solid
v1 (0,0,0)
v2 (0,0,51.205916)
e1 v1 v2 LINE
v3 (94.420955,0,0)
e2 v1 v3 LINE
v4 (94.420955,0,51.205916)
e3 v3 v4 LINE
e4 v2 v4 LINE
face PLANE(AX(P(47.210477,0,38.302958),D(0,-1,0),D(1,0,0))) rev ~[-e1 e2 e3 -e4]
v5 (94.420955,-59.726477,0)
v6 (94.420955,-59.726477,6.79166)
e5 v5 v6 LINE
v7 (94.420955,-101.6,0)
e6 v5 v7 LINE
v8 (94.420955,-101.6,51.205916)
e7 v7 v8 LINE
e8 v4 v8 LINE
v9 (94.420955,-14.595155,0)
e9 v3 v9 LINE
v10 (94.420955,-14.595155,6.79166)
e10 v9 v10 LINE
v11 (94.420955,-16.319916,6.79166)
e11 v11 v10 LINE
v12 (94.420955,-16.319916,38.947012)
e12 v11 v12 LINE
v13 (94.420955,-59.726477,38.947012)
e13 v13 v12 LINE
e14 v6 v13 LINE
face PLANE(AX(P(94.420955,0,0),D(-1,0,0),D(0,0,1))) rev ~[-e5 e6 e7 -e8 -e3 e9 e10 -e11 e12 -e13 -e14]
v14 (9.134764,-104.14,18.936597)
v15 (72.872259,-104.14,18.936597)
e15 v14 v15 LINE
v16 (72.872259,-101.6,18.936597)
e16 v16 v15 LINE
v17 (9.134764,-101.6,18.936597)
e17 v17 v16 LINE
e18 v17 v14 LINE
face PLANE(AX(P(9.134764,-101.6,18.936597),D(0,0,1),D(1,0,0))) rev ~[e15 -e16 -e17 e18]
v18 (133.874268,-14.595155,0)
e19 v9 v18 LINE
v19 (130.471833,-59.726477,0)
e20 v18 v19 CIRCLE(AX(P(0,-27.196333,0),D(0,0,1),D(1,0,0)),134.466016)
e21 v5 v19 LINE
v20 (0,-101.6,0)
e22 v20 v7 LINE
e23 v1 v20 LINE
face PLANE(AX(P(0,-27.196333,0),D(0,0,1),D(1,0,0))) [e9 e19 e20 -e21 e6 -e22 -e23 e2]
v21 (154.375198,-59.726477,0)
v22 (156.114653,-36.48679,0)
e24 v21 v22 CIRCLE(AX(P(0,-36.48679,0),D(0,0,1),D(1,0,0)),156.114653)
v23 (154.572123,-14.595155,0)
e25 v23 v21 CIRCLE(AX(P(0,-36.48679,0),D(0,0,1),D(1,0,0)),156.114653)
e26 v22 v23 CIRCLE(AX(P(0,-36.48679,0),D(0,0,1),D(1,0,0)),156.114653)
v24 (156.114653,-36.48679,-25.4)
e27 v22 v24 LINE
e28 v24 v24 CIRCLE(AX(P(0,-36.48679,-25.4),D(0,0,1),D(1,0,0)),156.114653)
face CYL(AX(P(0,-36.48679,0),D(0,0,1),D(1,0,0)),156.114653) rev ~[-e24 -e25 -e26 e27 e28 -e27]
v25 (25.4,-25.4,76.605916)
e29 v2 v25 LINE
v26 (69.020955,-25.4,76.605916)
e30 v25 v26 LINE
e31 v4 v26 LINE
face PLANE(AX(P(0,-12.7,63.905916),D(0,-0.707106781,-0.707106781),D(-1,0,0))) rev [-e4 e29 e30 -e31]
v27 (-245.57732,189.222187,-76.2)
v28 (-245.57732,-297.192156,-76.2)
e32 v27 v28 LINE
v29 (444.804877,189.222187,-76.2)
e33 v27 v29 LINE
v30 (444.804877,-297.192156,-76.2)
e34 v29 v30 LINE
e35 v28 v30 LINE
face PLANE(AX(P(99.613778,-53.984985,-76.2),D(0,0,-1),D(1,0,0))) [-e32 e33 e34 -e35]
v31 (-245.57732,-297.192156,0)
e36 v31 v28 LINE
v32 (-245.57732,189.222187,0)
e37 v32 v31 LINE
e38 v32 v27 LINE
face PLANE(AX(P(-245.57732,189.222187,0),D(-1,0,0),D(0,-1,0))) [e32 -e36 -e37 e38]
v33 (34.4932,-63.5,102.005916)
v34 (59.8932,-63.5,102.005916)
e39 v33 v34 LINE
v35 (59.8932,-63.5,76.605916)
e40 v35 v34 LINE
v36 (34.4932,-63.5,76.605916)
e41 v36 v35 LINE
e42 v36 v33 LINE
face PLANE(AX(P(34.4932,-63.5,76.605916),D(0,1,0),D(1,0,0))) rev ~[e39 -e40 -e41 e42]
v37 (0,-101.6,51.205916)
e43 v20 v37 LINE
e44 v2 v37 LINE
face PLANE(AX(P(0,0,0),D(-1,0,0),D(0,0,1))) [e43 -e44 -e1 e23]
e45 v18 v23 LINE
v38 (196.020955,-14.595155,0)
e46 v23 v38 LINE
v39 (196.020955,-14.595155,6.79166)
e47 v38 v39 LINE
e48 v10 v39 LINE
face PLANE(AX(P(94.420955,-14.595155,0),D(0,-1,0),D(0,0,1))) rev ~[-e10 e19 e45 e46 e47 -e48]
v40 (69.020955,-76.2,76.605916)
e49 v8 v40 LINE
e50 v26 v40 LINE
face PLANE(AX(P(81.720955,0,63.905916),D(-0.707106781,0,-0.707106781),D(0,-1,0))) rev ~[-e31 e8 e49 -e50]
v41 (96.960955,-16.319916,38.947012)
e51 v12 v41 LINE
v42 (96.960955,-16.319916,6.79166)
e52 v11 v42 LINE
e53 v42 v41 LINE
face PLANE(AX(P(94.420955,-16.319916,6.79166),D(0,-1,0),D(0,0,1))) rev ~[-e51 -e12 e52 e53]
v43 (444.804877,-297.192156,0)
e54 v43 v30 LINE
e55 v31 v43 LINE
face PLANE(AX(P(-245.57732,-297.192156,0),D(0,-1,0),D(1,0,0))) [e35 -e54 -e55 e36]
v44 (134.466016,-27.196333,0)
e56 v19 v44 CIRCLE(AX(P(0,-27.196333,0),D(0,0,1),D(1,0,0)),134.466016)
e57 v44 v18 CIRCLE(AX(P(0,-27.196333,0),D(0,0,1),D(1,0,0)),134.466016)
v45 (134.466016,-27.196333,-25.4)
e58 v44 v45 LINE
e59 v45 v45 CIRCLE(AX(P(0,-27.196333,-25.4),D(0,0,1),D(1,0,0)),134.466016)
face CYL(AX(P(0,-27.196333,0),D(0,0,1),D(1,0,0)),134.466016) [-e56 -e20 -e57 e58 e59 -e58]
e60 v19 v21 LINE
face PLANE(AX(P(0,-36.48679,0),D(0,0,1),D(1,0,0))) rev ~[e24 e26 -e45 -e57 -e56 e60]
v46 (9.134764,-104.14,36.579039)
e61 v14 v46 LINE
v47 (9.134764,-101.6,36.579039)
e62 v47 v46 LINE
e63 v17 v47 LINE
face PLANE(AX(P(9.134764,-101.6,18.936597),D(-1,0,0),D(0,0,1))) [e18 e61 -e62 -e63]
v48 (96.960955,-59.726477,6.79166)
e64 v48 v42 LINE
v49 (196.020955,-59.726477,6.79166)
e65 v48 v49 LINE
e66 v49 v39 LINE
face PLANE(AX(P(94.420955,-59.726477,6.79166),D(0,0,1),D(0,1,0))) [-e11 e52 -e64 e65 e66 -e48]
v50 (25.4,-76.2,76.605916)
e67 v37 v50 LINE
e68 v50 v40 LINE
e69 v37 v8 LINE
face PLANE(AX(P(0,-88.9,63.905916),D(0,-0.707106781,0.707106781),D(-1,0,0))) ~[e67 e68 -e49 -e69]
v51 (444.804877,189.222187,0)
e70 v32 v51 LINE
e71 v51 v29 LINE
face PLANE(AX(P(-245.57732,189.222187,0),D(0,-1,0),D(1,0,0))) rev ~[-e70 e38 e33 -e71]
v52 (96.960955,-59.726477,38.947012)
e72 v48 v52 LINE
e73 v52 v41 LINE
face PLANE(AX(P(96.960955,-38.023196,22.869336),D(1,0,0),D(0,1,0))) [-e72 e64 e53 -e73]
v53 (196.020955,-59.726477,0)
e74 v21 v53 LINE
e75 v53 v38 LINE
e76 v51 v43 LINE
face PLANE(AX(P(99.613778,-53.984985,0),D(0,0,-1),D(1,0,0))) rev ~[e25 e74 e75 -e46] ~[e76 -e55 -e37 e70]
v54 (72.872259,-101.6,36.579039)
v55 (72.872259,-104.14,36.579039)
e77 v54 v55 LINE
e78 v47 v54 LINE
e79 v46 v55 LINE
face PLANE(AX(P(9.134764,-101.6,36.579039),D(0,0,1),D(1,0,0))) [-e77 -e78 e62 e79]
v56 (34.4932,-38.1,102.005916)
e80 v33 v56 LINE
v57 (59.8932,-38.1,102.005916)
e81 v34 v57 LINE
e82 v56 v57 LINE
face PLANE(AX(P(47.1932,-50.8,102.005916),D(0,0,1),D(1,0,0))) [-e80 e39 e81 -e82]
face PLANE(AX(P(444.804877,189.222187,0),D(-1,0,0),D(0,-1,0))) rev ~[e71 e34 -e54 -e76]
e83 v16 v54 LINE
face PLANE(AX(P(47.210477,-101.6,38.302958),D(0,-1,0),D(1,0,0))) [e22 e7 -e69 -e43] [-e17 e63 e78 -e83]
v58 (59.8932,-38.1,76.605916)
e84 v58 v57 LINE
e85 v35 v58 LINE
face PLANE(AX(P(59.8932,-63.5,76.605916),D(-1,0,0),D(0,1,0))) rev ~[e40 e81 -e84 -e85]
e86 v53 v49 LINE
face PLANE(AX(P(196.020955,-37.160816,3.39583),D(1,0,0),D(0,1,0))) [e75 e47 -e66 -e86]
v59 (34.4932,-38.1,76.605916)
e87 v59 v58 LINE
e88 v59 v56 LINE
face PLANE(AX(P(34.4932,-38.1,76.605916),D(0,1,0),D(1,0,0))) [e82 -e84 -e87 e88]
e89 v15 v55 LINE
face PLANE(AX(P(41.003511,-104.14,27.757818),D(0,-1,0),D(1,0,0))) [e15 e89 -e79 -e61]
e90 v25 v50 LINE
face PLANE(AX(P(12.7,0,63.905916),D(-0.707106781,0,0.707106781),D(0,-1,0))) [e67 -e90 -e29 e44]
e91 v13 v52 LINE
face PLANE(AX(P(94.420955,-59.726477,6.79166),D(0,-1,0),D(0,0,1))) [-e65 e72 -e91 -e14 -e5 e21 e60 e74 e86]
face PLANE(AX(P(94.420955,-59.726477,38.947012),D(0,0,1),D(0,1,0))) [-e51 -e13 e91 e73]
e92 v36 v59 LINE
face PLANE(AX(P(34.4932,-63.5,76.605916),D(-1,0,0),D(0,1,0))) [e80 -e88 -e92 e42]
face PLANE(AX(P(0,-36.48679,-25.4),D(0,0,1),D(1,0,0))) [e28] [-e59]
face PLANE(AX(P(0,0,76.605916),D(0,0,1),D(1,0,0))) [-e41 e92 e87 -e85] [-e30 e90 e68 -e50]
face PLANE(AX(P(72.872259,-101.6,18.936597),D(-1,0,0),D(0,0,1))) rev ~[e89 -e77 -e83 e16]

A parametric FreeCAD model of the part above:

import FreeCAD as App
import Part
import Sketcher

V = App.Vector
Q = App.Units.Quantity


def edges_at(feature, points):
    """Names of the edges that pass closest to the given points."""
    edges = feature.Shape.Edges
    near = lambda p: min(range(len(edges)), key=lambda i: edges[i].distToShape(Part.Vertex(*p))[0])
    return sorted({f"Edge{near(p) + 1}" for p in points})

doc = App.newDocument("Part")
body = doc.addObject("PartDesign::Body", "Body")

# Sketch on XZ plane
sketch1 = body.newObject("Sketcher::SketchObject", "Sketch")
sketch1.AttachmentSupport = (doc.getObject("XZ_Plane"), [""])
sketch1.MapMode = "FlatFace"
sketch1.addGeometry(Part.LineSegment(V(0, 77, 0), V(0, 0, 0)), False)
sketch1.addGeometry(Part.LineSegment(V(0, 0, 0), V(94, 0, 0)), False)
sketch1.addGeometry(Part.LineSegment(V(94, 0, 0), V(94, 77, 0)), False)
sketch1.addGeometry(Part.LineSegment(V(94, 77, 0), V(0, 77, 0)), False)
sketch1.addConstraint(Sketcher.Constraint("Coincident", 0, 2, 1, 1))
sketch1.addConstraint(Sketcher.Constraint("Coincident", 1, 2, 2, 1))
sketch1.addConstraint(Sketcher.Constraint("Coincident", 2, 2, 3, 1))
sketch1.addConstraint(Sketcher.Constraint("Coincident", 3, 2, 0, 1))
sketch1.addConstraint(Sketcher.Constraint("Vertical", 0))
sketch1.addConstraint(Sketcher.Constraint("Horizontal", 1))
sketch1.addConstraint(Sketcher.Constraint("Vertical", 2))
sketch1.addConstraint(Sketcher.Constraint("Horizontal", 3))
sketch1.addConstraint(Sketcher.Constraint("Coincident", 0, 2, -1, 1))
sketch1.addConstraint(Sketcher.Constraint("DistanceX", 1, 1, 1, 2, 94.420955))
sketch1.addConstraint(Sketcher.Constraint("DistanceY", 0, 2, 0, 1, 76.605916))
pad1 = body.newObject("PartDesign::Pad", "Pad")
pad1.Profile = sketch1
pad1.Length = Q("4 in")
doc.recompute()

chamfer = body.newObject("PartDesign::Chamfer", "Chamfer")
chamfer.Base = (pad1, edges_at(pad1, [
    (94.421, -50.8, 76.606),
    (0, -50.8, 76.606),
    (47.21, 0, 76.606),
    (47.21, -101.6, 76.606),
]))
chamfer.Size = Q("1 in")

# Sketch on XY plane
sketch2 = body.newObject("Sketcher::SketchObject", "Sketch001")
sketch2.AttachmentSupport = (doc.getObject("XY_Plane"), [""])
sketch2.MapMode = "FlatFace"
sketch2.AttachmentOffset = App.Placement(V(0, 0, 76.605916), App.Rotation())
sketch2.addGeometry(Part.LineSegment(V(34, -38, 0), V(34, -64, 0)), False)
sketch2.addGeometry(Part.LineSegment(V(34, -64, 0), V(60, -64, 0)), False)
sketch2.addGeometry(Part.LineSegment(V(60, -64, 0), V(60, -38, 0)), False)
sketch2.addGeometry(Part.LineSegment(V(60, -38, 0), V(34, -38, 0)), False)
sketch2.addConstraint(Sketcher.Constraint("Coincident", 0, 2, 1, 1))
sketch2.addConstraint(Sketcher.Constraint("Coincident", 1, 2, 2, 1))
sketch2.addConstraint(Sketcher.Constraint("Coincident", 2, 2, 3, 1))
sketch2.addConstraint(Sketcher.Constraint("Coincident", 3, 2, 0, 1))
sketch2.addConstraint(Sketcher.Constraint("Vertical", 0))
sketch2.addConstraint(Sketcher.Constraint("Horizontal", 1))
sketch2.addConstraint(Sketcher.Constraint("Vertical", 2))
sketch2.addConstraint(Sketcher.Constraint("Horizontal", 3))
sketch2.addConstraint(Sketcher.Constraint("Equal", 3, 0))
sketch2.addConstraint(Sketcher.Constraint("DistanceX", 1, 1, 1, 2, Q("1 in")))
sketch2.addConstraint(Sketcher.Constraint("DistanceY", 0, 2, -1, 1, Q("2.5 in")))
sketch2.addConstraint(Sketcher.Constraint("DistanceX", -1, 1, 0, 2, Q("1.358 in")))
pad2 = body.newObject("PartDesign::Pad", "Pad001")
pad2.Profile = sketch2
pad2.Length = Q("1 in")

# Sketch on YZ plane
sketch3 = body.newObject("Sketcher::SketchObject", "Sketch002")
sketch3.AttachmentSupport = (doc.getObject("YZ_Plane"), [""])
sketch3.MapMode = "FlatFace"
sketch3.AttachmentOffset = App.Placement(V(0, 0, 94.420955), App.Rotation())
sketch3.addGeometry(Part.LineSegment(V(-60, 7, 0), V(-60, 0, 0)), False)
sketch3.addGeometry(Part.LineSegment(V(-60, 0, 0), V(-15, 0, 0)), False)
sketch3.addGeometry(Part.LineSegment(V(-15, 0, 0), V(-15, 7, 0)), False)
sketch3.addGeometry(Part.LineSegment(V(-15, 7, 0), V(-60, 7, 0)), False)
sketch3.addConstraint(Sketcher.Constraint("Coincident", 0, 2, 1, 1))
sketch3.addConstraint(Sketcher.Constraint("Coincident", 1, 2, 2, 1))
sketch3.addConstraint(Sketcher.Constraint("Coincident", 2, 2, 3, 1))
sketch3.addConstraint(Sketcher.Constraint("Coincident", 3, 2, 0, 1))
sketch3.addConstraint(Sketcher.Constraint("Vertical", 0))
sketch3.addConstraint(Sketcher.Constraint("Horizontal", 1))
sketch3.addConstraint(Sketcher.Constraint("Vertical", 2))
sketch3.addConstraint(Sketcher.Constraint("Horizontal", 3))
sketch3.addConstraint(Sketcher.Constraint("PointOnObject", 0, 2, -1))
sketch3.addConstraint(Sketcher.Constraint("DistanceX", 1, 1, 1, 2, 45.131322))
sketch3.addConstraint(Sketcher.Constraint("DistanceY", 0, 2, 0, 1, 6.79166))
sketch3.addConstraint(Sketcher.Constraint("DistanceX", 0, 2, -1, 1, 59.726477))
pad3 = body.newObject("PartDesign::Pad", "Pad002")
pad3.Profile = sketch3
pad3.Length = Q("4 in")

# Sketch on XZ plane
sketch4 = body.newObject("Sketcher::SketchObject", "Sketch003")
sketch4.AttachmentSupport = (doc.getObject("XZ_Plane"), [""])
sketch4.MapMode = "FlatFace"
sketch4.AttachmentOffset = App.Placement(V(0, 0, 4 * 25.4), App.Rotation())
sketch4.addGeometry(Part.LineSegment(V(9, 37, 0), V(9, 19, 0)), False)
sketch4.addGeometry(Part.LineSegment(V(9, 19, 0), V(73, 19, 0)), False)
sketch4.addGeometry(Part.LineSegment(V(73, 19, 0), V(73, 37, 0)), False)
sketch4.addGeometry(Part.LineSegment(V(73, 37, 0), V(9, 37, 0)), False)
sketch4.addConstraint(Sketcher.Constraint("Coincident", 0, 2, 1, 1))
sketch4.addConstraint(Sketcher.Constraint("Coincident", 1, 2, 2, 1))
sketch4.addConstraint(Sketcher.Constraint("Coincident", 2, 2, 3, 1))
sketch4.addConstraint(Sketcher.Constraint("Coincident", 3, 2, 0, 1))
sketch4.addConstraint(Sketcher.Constraint("Vertical", 0))
sketch4.addConstraint(Sketcher.Constraint("Horizontal", 1))
sketch4.addConstraint(Sketcher.Constraint("Vertical", 2))
sketch4.addConstraint(Sketcher.Constraint("Horizontal", 3))
sketch4.addConstraint(Sketcher.Constraint("DistanceX", 1, 1, 1, 2, 63.737495))
sketch4.addConstraint(Sketcher.Constraint("DistanceY", 0, 2, 0, 1, 17.642442))
sketch4.addConstraint(Sketcher.Constraint("DistanceX", -1, 1, 1, 2, 72.872259))
sketch4.addConstraint(Sketcher.Constraint("DistanceY", -1, 1, 2, 2, 36.579039))
pad4 = body.newObject("PartDesign::Pad", "Pad003")
pad4.Profile = sketch4
pad4.Length = Q("0.1 in")

# Sketch on YZ plane
sketch5 = body.newObject("Sketcher::SketchObject", "Sketch004")
sketch5.AttachmentSupport = (doc.getObject("YZ_Plane"), [""])
sketch5.MapMode = "FlatFace"
sketch5.AttachmentOffset = App.Placement(V(0, 0, 94.420955), App.Rotation())
sketch5.addGeometry(Part.LineSegment(V(-60, 39, 0), V(-60, 7, 0)), False)
sketch5.addGeometry(Part.LineSegment(V(-60, 7, 0), V(-16, 7, 0)), False)
sketch5.addGeometry(Part.LineSegment(V(-16, 7, 0), V(-16, 39, 0)), False)
sketch5.addGeometry(Part.LineSegment(V(-16, 39, 0), V(-60, 39, 0)), False)
sketch5.addConstraint(Sketcher.Constraint("Coincident", 0, 2, 1, 1))
sketch5.addConstraint(Sketcher.Constraint("Coincident", 1, 2, 2, 1))
sketch5.addConstraint(Sketcher.Constraint("Coincident", 2, 2, 3, 1))
sketch5.addConstraint(Sketcher.Constraint("Coincident", 3, 2, 0, 1))
sketch5.addConstraint(Sketcher.Constraint("Vertical", 0))
sketch5.addConstraint(Sketcher.Constraint("Horizontal", 1))
sketch5.addConstraint(Sketcher.Constraint("Vertical", 2))
sketch5.addConstraint(Sketcher.Constraint("Horizontal", 3))
sketch5.addConstraint(Sketcher.Constraint("DistanceX", 1, 1, 1, 2, 43.406561))
sketch5.addConstraint(Sketcher.Constraint("DistanceY", 0, 2, 0, 1, 32.155352))
sketch5.addConstraint(Sketcher.Constraint("DistanceY", -1, 1, 0, 2, 6.79166))
sketch5.addConstraint(Sketcher.Constraint("DistanceX", 0, 2, -1, 1, 59.726477))
pad5 = body.newObject("PartDesign::Pad", "Pad004")
pad5.Profile = sketch5
pad5.Length = Q("0.1 in")

# Sketch on XY plane
sketch6 = body.newObject("Sketcher::SketchObject", "Sketch005")
sketch6.AttachmentSupport = (doc.getObject("XY_Plane"), [""])
sketch6.MapMode = "FlatFace"
sketch6.addGeometry(Part.LineSegment(V(-246, -297, 0), V(-246, 189, 0)), False)
sketch6.addGeometry(Part.LineSegment(V(-246, 189, 0), V(445, 189, 0)), False)
sketch6.addGeometry(Part.LineSegment(V(445, 189, 0), V(445, -297, 0)), False)
sketch6.addGeometry(Part.LineSegment(V(445, -297, 0), V(-246, -297, 0)), False)
sketch6.addConstraint(Sketcher.Constraint("Coincident", 0, 2, 1, 1))
sketch6.addConstraint(Sketcher.Constraint("Coincident", 1, 2, 2, 1))
sketch6.addConstraint(Sketcher.Constraint("Coincident", 2, 2, 3, 1))
sketch6.addConstraint(Sketcher.Constraint("Coincident", 3, 2, 0, 1))
sketch6.addConstraint(Sketcher.Constraint("Vertical", 0))
sketch6.addConstraint(Sketcher.Constraint("Horizontal", 1))
sketch6.addConstraint(Sketcher.Constraint("Vertical", 2))
sketch6.addConstraint(Sketcher.Constraint("Horizontal", 3))
sketch6.addConstraint(Sketcher.Constraint("DistanceX", 1, 1, 1, 2, 690.382197))
sketch6.addConstraint(Sketcher.Constraint("DistanceY", 0, 1, 0, 2, 486.414343))
sketch6.addConstraint(Sketcher.Constraint("DistanceX", 0, 2, -1, 1, 245.57732))
sketch6.addConstraint(Sketcher.Constraint("DistanceY", -1, 1, 0, 2, 189.222187))
pad6 = body.newObject("PartDesign::Pad", "Pad005")
pad6.Profile = sketch6
pad6.Length = Q("3 in")
pad6.Reversed = True

# Sketch on XY plane
sketch7 = body.newObject("Sketcher::SketchObject", "Sketch006")
sketch7.AttachmentSupport = (doc.getObject("XY_Plane"), [""])
sketch7.MapMode = "FlatFace"
sketch7.addGeometry(Part.Circle(V(0, -36, 0), V(0, 0, 1), 156), False)
sketch7.addConstraint(Sketcher.Constraint("PointOnObject", 0, 3, -2))
sketch7.addConstraint(Sketcher.Constraint("Diameter", 0, 312.229307))
sketch7.addConstraint(Sketcher.Constraint("DistanceY", 0, 3, -1, 1, 36.48679))
pocket1 = body.newObject("PartDesign::Pocket", "Pocket")
pocket1.Profile = sketch7
pocket1.Length = Q("1 in")

# Sketch on XY plane
sketch8 = body.newObject("Sketcher::SketchObject", "Sketch007")
sketch8.AttachmentSupport = (doc.getObject("XY_Plane"), [""])
sketch8.MapMode = "FlatFace"
sketch8.addGeometry(Part.Circle(V(0, -27, 0), V(0, 0, 1), 134), False)
sketch8.addConstraint(Sketcher.Constraint("PointOnObject", 0, 3, -2))
sketch8.addConstraint(Sketcher.Constraint("Diameter", 0, 268.932031))
sketch8.addConstraint(Sketcher.Constraint("DistanceY", 0, 3, -1, 1, 27.196333))
pad7 = body.newObject("PartDesign::Pad", "Pad006")
pad7.Profile = sketch8
pad7.Type = "UpToLast"
pad7.Reversed = True

doc.recompute()
